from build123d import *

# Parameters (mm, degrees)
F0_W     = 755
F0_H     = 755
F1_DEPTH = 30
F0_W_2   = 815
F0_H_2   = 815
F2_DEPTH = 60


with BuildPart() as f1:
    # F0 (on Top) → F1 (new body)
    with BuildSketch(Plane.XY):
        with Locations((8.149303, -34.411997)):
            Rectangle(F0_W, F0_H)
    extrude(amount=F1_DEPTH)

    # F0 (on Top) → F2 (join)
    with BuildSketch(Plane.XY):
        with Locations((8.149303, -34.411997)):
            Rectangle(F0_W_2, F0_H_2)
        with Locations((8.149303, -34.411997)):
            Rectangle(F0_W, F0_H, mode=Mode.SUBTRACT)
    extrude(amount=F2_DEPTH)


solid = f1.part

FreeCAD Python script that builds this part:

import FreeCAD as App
import Part
import Sketcher
from FreeCAD import Vector

doc = App.newDocument("Part")
body = doc.addObject("PartDesign::Body", "Body")

# Sketch on XY plane
sketch1 = body.newObject("Sketcher::SketchObject", "Sketch")
sketch1.AttachmentSupport = (doc.getObject("XY_Plane"), [""])
sketch1.MapMode = "FlatFace"
sketch1.addGeometry([
    Part.LineSegment(Vector(-369, 343, 0), Vector(-369, -412, 0)),
    Part.LineSegment(Vector(-369, -412, 0), Vector(386, -412, 0)),
    Part.LineSegment(Vector(386, -412, 0), Vector(386, 343, 0)),
    Part.LineSegment(Vector(386, 343, 0), Vector(-369, 343, 0)),
], False)
sketch1.addConstraint([
    Sketcher.Constraint("Coincident", 0, 2, 1, 1),
    Sketcher.Constraint("Coincident", 1, 2, 2, 1),
    Sketcher.Constraint("Coincident", 2, 2, 3, 1),
    Sketcher.Constraint("Coincident", 3, 2, 0, 1),
    Sketcher.Constraint("Vertical", 0),
    Sketcher.Constraint("Horizontal", 1),
    Sketcher.Constraint("Vertical", 2),
    Sketcher.Constraint("Horizontal", 3),
    Sketcher.Constraint("Equal", 3, 0),
    Sketcher.Constraint("DistanceX", 1, 1, 1, 2, 755.0),
    Sketcher.Constraint("DistanceX", 0, 2, -1, 1, 369.350697),
    Sketcher.Constraint("DistanceY", 0, 2, -1, 1, 411.911997),
])
pad1 = body.newObject("PartDesign::Pad", "Pad")
pad1.Profile = sketch1
pad1.Length = 30

# Sketch on XY plane
sketch2 = body.newObject("Sketcher::SketchObject", "Sketch001")
sketch2.AttachmentSupport = (doc.getObject("XY_Plane"), [""])
sketch2.MapMode = "FlatFace"
sketch2.addGeometry([
    Part.LineSegment(Vector(-399, 373, 0), Vector(-399, -442, 0)),  # 0
    Part.LineSegment(Vector(-399, -442, 0), Vector(416, -442, 0)),  # 1
    Part.LineSegment(Vector(416, -442, 0), Vector(416, 373, 0)),  # 2
    Part.LineSegment(Vector(416, 373, 0), Vector(-399, 373, 0)),  # 3
    Part.LineSegment(Vector(386, -412, 0), Vector(-369, -412, 0)),  # 4
    Part.LineSegment(Vector(-369, -412, 0), Vector(-369, 343, 0)),  # 5
    Part.LineSegment(Vector(-369, 343, 0), Vector(386, 343, 0)),  # 6
    Part.LineSegment(Vector(386, 343, 0), Vector(386, -412, 0)),  # 7
], False)
sketch2.addConstraint([
    Sketcher.Constraint("Coincident", 0, 2, 1, 1),
    Sketcher.Constraint("Coincident", 1, 2, 2, 1),
    Sketcher.Constraint("Coincident", 2, 2, 3, 1),
    Sketcher.Constraint("Coincident", 3, 2, 0, 1),
    Sketcher.Constraint("Coincident", 4, 2, 5, 1),
    Sketcher.Constraint("Coincident", 5, 2, 6, 1),
    Sketcher.Constraint("Coincident", 6, 2, 7, 1),
    Sketcher.Constraint("Coincident", 7, 2, 4, 1),
    Sketcher.Constraint("Vertical", 0),
    Sketcher.Constraint("Horizontal", 1),
    Sketcher.Constraint("Vertical", 2),
    Sketcher.Constraint("Horizontal", 3),
    Sketcher.Constraint("Horizontal", 4),
    Sketcher.Constraint("Vertical", 5),
    Sketcher.Constraint("Horizontal", 6),
    Sketcher.Constraint("Vertical", 7),
    Sketcher.Constraint("Equal", 3, 0),
    Sketcher.Constraint("Equal", 6, 5),
    Sketcher.Constraint("DistanceX", 1, 1, 1, 2, 815.0),
    Sketcher.Constraint("DistanceX", 4, 2, 4, 1, 755.0),
    Sketcher.Constraint("DistanceX", 0, 2, 4, 2, 30.0),
    Sketcher.Constraint("DistanceY", 0, 2, 4, 2, 30.0),
    Sketcher.Constraint("DistanceX", 0, 2, -1, 1, 399.350697),
    Sketcher.Constraint("DistanceY", 0, 2, -1, 1, 441.911997),
])
pad2 = body.newObject("PartDesign::Pad", "Pad001")
pad2.Profile = sketch2
pad2.Length = 60

doc.recompute()
